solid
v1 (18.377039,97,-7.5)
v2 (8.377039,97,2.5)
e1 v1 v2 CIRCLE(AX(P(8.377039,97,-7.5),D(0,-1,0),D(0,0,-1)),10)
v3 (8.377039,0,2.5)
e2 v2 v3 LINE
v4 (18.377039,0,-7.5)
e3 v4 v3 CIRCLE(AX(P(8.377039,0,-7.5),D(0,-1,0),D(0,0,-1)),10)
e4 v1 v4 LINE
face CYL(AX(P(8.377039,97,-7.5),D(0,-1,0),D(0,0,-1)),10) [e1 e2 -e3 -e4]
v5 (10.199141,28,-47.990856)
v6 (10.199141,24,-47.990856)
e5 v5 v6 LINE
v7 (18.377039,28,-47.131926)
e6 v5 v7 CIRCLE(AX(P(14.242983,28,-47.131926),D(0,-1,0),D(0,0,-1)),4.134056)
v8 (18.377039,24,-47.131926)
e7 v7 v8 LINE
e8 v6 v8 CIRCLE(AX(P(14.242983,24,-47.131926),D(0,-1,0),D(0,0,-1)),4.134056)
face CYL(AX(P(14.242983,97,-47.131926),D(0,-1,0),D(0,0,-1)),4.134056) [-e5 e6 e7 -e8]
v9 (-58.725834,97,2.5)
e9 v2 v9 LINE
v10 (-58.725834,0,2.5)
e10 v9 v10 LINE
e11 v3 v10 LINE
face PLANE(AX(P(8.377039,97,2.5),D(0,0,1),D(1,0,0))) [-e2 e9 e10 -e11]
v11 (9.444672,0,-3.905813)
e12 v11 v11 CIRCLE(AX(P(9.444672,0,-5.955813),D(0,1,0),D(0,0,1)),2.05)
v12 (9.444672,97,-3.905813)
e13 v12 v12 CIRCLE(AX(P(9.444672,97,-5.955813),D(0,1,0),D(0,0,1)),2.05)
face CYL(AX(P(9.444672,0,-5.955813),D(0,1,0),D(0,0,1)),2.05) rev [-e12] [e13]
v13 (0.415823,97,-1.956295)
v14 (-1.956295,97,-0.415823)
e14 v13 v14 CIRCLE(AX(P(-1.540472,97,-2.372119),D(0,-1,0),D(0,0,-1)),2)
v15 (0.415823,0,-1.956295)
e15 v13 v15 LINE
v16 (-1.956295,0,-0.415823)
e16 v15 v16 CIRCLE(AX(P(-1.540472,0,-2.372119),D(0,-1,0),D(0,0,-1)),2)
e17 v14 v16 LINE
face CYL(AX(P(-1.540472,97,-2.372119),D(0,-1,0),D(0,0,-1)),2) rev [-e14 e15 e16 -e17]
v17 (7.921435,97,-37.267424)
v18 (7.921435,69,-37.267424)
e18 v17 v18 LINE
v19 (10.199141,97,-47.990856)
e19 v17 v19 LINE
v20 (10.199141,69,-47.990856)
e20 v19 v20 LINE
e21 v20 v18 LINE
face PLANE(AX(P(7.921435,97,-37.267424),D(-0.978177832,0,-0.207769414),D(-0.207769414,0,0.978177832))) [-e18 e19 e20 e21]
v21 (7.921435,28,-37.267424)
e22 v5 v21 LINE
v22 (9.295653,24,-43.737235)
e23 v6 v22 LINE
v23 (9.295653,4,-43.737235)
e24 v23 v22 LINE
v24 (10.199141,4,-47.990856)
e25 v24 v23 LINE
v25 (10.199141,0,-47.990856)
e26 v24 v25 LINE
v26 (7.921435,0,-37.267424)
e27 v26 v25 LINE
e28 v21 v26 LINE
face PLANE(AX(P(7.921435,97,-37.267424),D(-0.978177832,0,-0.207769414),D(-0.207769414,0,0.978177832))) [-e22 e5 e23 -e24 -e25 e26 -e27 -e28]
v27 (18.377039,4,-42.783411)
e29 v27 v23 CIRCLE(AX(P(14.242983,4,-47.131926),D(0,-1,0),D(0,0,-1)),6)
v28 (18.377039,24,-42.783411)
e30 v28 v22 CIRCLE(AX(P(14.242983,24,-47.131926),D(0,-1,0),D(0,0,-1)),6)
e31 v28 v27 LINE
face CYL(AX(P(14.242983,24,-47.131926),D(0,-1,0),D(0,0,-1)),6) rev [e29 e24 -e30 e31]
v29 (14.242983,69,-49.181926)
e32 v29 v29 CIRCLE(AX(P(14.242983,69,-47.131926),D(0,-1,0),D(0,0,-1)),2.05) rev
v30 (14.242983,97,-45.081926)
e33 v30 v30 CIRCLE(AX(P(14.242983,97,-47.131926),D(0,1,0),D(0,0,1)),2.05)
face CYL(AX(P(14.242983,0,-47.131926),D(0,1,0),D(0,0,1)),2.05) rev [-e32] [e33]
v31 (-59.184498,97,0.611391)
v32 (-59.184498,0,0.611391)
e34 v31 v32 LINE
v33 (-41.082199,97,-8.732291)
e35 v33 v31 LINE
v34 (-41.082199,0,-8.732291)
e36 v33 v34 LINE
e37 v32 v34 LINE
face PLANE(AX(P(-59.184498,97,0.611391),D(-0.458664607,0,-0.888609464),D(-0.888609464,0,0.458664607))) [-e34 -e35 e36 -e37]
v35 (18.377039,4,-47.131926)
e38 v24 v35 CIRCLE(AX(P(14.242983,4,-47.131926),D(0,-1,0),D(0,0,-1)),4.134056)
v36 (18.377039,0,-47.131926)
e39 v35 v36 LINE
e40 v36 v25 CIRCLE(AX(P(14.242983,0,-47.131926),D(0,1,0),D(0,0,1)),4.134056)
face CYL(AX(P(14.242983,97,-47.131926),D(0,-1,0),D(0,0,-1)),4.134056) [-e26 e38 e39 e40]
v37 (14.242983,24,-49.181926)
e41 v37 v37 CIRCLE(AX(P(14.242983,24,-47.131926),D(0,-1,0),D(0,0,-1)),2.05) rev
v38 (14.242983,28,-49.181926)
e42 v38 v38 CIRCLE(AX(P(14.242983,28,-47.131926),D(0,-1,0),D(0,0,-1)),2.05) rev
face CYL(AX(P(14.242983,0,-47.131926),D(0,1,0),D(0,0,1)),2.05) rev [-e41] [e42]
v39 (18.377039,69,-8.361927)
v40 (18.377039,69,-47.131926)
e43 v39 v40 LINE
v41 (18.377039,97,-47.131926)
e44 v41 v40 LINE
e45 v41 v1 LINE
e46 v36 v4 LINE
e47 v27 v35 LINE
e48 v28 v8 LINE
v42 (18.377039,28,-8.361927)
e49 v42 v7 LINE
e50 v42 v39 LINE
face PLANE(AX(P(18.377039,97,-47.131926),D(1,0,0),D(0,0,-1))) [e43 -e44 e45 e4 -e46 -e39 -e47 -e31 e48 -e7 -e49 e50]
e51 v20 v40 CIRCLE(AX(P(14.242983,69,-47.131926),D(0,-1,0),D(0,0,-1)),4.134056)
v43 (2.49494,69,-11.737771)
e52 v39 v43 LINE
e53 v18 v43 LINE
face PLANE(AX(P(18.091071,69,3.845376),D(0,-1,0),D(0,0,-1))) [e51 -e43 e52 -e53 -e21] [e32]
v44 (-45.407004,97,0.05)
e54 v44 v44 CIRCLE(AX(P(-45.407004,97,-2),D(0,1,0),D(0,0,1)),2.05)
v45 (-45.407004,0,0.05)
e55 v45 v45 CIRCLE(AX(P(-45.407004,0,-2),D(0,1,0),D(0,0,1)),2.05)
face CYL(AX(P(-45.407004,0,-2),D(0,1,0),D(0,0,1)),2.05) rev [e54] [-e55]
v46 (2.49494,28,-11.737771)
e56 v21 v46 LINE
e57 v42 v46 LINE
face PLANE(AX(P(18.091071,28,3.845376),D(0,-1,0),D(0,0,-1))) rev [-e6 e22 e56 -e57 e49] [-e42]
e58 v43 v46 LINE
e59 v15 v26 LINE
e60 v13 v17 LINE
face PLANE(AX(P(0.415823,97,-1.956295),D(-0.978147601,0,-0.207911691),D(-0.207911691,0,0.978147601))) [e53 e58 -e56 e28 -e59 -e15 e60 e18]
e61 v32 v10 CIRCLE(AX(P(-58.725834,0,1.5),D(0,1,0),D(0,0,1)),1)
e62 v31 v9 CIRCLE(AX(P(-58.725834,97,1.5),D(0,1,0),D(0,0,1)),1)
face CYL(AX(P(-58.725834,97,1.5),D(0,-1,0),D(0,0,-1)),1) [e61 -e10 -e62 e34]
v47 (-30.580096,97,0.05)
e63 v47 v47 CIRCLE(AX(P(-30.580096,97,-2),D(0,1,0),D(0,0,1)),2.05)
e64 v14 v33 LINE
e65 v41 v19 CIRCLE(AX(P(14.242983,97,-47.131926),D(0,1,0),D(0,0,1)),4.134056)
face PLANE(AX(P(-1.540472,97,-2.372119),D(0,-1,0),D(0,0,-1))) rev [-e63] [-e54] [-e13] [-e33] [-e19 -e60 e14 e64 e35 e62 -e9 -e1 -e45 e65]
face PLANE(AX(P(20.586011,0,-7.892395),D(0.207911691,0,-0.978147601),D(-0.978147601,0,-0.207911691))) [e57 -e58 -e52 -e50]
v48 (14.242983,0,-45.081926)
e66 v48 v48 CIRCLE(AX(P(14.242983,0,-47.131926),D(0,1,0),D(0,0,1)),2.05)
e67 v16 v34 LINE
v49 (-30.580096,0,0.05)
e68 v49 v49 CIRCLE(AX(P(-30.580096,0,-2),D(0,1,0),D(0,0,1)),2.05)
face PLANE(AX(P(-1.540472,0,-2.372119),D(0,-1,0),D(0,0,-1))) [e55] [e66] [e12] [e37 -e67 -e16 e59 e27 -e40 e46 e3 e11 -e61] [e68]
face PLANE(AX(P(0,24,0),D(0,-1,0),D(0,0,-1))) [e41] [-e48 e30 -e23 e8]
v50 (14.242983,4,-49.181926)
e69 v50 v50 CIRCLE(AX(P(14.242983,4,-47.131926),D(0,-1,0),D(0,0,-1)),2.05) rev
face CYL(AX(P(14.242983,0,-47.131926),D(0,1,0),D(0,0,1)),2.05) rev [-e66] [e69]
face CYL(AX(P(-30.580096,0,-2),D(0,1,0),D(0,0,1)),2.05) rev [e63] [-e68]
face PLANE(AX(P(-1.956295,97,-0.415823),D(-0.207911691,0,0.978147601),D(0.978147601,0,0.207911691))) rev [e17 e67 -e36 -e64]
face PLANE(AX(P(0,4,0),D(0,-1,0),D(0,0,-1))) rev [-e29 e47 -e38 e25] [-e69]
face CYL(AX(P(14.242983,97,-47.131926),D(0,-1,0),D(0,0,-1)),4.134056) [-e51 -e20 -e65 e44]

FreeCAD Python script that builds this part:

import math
import FreeCAD as App
import Part
import Sketcher
from FreeCAD import Vector
Q = App.Units.Quantity

doc = App.newDocument("Part")
body = doc.addObject("PartDesign::Body", "Body")

# Sketch on XZ plane
sketch1 = body.newObject("Sketcher::SketchObject", "Sketch")
sketch1.AttachmentSupport = (doc.getObject("XZ_Plane"), [""])
sketch1.MapMode = "FlatFace"
sketch1.addGeometry(Part.LineSegment(Vector(-2, -0.4, 0), Vector(-41.1, -8.7, 0)), False)
sketch1.addGeometry(Part.LineSegment(Vector(-41.1, -8.7, 0), Vector(-58, 0, 0)), False)
sketch1.addGeometry(Part.LineSegment(Vector(-58, 0, 0), Vector(-59.2, 0.6, 0)), False)
sketch1.addGeometry(Part.ArcOfCircle(Part.Circle(Vector(-58.7, 1.5, 0), Vector(0, 0, 1), 1), math.radians(90), math.radians(243)), False)
sketch1.addGeometry(Part.LineSegment(Vector(-58.7, 2.5, 0), Vector(8.4, 2.5, 0)), False)
sketch1.addGeometry(Part.ArcOfCircle(Part.Circle(Vector(8.4, -7.5, 0), Vector(0, 0, 1), 10), math.radians(0), math.radians(90)), False)
sketch1.addGeometry(Part.LineSegment(Vector(18.4, -7.5, 0), Vector(18.4, -47.1, 0)), False)
sketch1.addGeometry(Part.ArcOfCircle(Part.Circle(Vector(14.2, -47.1, 0), Vector(0, 0, 1), 4.1), math.radians(-168), math.radians(0)), False)
sketch1.addGeometry(Part.LineSegment(Vector(10.2, -48, 0), Vector(7.9, -37.3, 0)), False)
sketch1.addGeometry(Part.LineSegment(Vector(7.9, -37.3, 0), Vector(0.4, -2, 0)), False)
sketch1.addGeometry(Part.ArcOfCircle(Part.Circle(Vector(-1.5, -2.4, 0), Vector(0, 0, 1), 2), math.radians(12), math.radians(102)), False)
sketch1.addConstraint(Sketcher.Constraint("Coincident", 0, 2, 1, 1))
sketch1.addConstraint(Sketcher.Constraint("Coincident", 1, 2, 2, 1))
sketch1.addConstraint(Sketcher.Constraint("Tangent", 2, 2, 3, 2))
sketch1.addConstraint(Sketcher.Constraint("Tangent", 3, 1, 4, 1))
sketch1.addConstraint(Sketcher.Constraint("Tangent", 4, 2, 5, 2))
sketch1.addConstraint(Sketcher.Constraint("Tangent", 5, 1, 6, 1))
sketch1.addConstraint(Sketcher.Constraint("Tangent", 6, 2, 7, 2))
sketch1.addConstraint(Sketcher.Constraint("Tangent", 7, 1, 8, 1))
sketch1.addConstraint(Sketcher.Constraint("Coincident", 8, 2, 9, 1))
sketch1.addConstraint(Sketcher.Constraint("Tangent", 9, 2, 10, 1))
sketch1.addConstraint(Sketcher.Constraint("Tangent", 10, 2, 0, 1))
sketch1.addConstraint(Sketcher.Constraint("Horizontal", 4))
sketch1.addConstraint(Sketcher.Constraint("Vertical", 6))
sketch1.addConstraint(Sketcher.Constraint("PointOnObject", 1, 2, -1))
sketch1.addConstraint(Sketcher.Constraint("Parallel", 1, 2))
sketch1.addConstraint(Sketcher.Constraint("Perpendicular", 0, 9))
sketch1.addConstraint(Sketcher.Constraint("Radius", 3, 1.0))
sketch1.addConstraint(Sketcher.Constraint("Radius", 5, 10.0))
sketch1.addConstraint(Sketcher.Constraint("Radius", 10, 2.0))
sketch1.addConstraint(Sketcher.Constraint("Angle", 0, Q("-168 deg")))
sketch1.addConstraint(Sketcher.Constraint("Distance", 0, 40.0))
sketch1.addConstraint(Sketcher.Constraint("DistanceX", 1, 2, -1, 1, 58.0))
sketch1.addConstraint(Sketcher.Constraint("Distance", 9, 36.1))
sketch1.addConstraint(Sketcher.Constraint("DistanceY", -1, 1, 3, 3, 1.5))
sketch1.addConstraint(Sketcher.Constraint("Radius", 7, 4.134056))
sketch1.addConstraint(Sketcher.Constraint("DistanceX", 0, 2, -1, 1, 41.082199))
sketch1.addConstraint(Sketcher.Constraint("DistanceX", 2, 2, -1, 1, 59.184498))
sketch1.addConstraint(Sketcher.Constraint("DistanceX", 7, 1, 6, 2, 8.177898))
sketch1.addConstraint(Sketcher.Constraint("DistanceY", 7, 3, 8, 2, 9.864502))
pad1 = body.newObject("PartDesign::Pad", "Pad")
pad1.Profile = sketch1
pad1.Length = 97
pad1.Reversed = True

# Sketch on XZ plane
sketch2 = body.newObject("Sketcher::SketchObject", "Sketch001")
sketch2.AttachmentSupport = (doc.getObject("XZ_Plane"), [""])
sketch2.MapMode = "FlatFace"
sketch2.AttachmentOffset = App.Placement(Vector(0, 0, -97), App.Rotation())
sketch2.addGeometry(Part.Circle(Vector(-45.4, -2, 0), Vector(0, 0, 1), 2), False)
sketch2.addGeometry(Part.Circle(Vector(9.4, -6, 0), Vector(0, 0, 1), 2), False)
sketch2.addGeometry(Part.Circle(Vector(14.2, -47.1, 0), Vector(0, 0, 1), 2), False)
sketch2.addGeometry(Part.Circle(Vector(-30.6, -2, 0), Vector(0, 0, 1), 2), False)
sketch2.addConstraint(Sketcher.Constraint("Equal", 0, 1))
sketch2.addConstraint(Sketcher.Constraint("Equal", 1, 2))
sketch2.addConstraint(Sketcher.Constraint("Equal", 2, 3))
sketch2.addConstraint(Sketcher.Constraint("Horizontal", 0, 3, 3, 3))
sketch2.addConstraint(Sketcher.Constraint("Diameter", 0, 4.1))
sketch2.addConstraint(Sketcher.Constraint("DistanceY", 0, 3, -1, 1, 2.0))
sketch2.addConstraint(Sketcher.Constraint("DistanceX", -1, 1, 1, 3, 9.444672))
sketch2.addConstraint(Sketcher.Constraint("DistanceX", 1, 3, 2, 3, 4.798311))
sketch2.addConstraint(Sketcher.Constraint("DistanceX", 0, 3, 3, 3, 14.826908))
sketch2.addConstraint(Sketcher.Constraint("DistanceX", 3, 3, 2, 3, 44.823079))
sketch2.addConstraint(Sketcher.Constraint("DistanceY", 1, 3, -1, 1, 5.955813))
sketch2.addConstraint(Sketcher.Constraint("DistanceY", 2, 3, -1, 1, 47.131926))
pocket1 = body.newObject("PartDesign::Pocket", "Pocket")
pocket1.Profile = sketch2
pocket1.Type = "ThroughAll"
pocket1.Reversed = True

# Sketch on an angled plane
sketch3 = body.newObject("Sketcher::SketchObject", "Sketch002")
sketch3.Placement = App.Placement(Vector(-9.781476, 0, -2.079117), App.Rotation(Vector(-0.207911691, 0, 0.978147601), Vector(0, 1.000000001, 0), Vector(-0.978147601, 0, -0.207911691), "ZXY"))
sketch3.addGeometry(Part.LineSegment(Vector(-53, 69, 0), Vector(-53, 28, 0)), False)
sketch3.addGeometry(Part.LineSegment(Vector(-53, 28, 0), Vector(-12, 28, 0)), False)
sketch3.addGeometry(Part.LineSegment(Vector(-12, 28, 0), Vector(-12, 69, 0)), False)
sketch3.addGeometry(Part.LineSegment(Vector(-12, 69, 0), Vector(-53, 69, 0)), False)
sketch3.addConstraint(Sketcher.Constraint("Coincident", 0, 2, 1, 1))
sketch3.addConstraint(Sketcher.Constraint("Coincident", 1, 2, 2, 1))
sketch3.addConstraint(Sketcher.Constraint("Coincident", 2, 2, 3, 1))
sketch3.addConstraint(Sketcher.Constraint("Coincident", 3, 2, 0, 1))
sketch3.addConstraint(Sketcher.Constraint("Vertical", 0))
sketch3.addConstraint(Sketcher.Constraint("Horizontal", 1))
sketch3.addConstraint(Sketcher.Constraint("Vertical", 2))
sketch3.addConstraint(Sketcher.Constraint("Horizontal", 3))
sketch3.addConstraint(Sketcher.Constraint("DistanceY", 0, 2, 0, 1, 41.0))
sketch3.addConstraint(Sketcher.Constraint("DistanceY", -1, 1, 0, 2, 28.0))
sketch3.addConstraint(Sketcher.Constraint("DistanceX", 1, 2, -1, 1, 12.0))
sketch3.addConstraint(Sketcher.Constraint("DistanceX", 1, 1, 1, 2, 41.197319))
pocket2 = body.newObject("PartDesign::Pocket", "Pocket001")
pocket2.Profile = sketch3
pocket2.Type = "ThroughAll"
pocket2.Midplane = True

# Sketch on XZ plane
sketch4 = body.newObject("Sketcher::SketchObject", "Sketch003")
sketch4.AttachmentSupport = (doc.getObject("XZ_Plane"), [""])
sketch4.MapMode = "FlatFace"
sketch4.AttachmentOffset = App.Placement(Vector(0, 0, -4), App.Rotation())
sketch4.addGeometry(Part.ArcOfCircle(Part.Circle(Vector(14.2, -47.1, 0), Vector(0, 0, 1), 6), math.radians(46), math.radians(146)), False)
sketch4.addGeometry(Part.ArcOfCircle(Part.Circle(Vector(14.2, -47.1, 0), Vector(0, 0, 1), 6), math.radians(146), math.radians(360)), False)
sketch4.addGeometry(Part.ArcOfCircle(Part.Circle(Vector(14.2, -47.1, 0), Vector(0, 0, 1), 6), math.radians(0), math.radians(46)), False)
sketch4.addGeometry(Part.Circle(Vector(14.2, -47.1, 0), Vector(0, 0, 1), 2), False)
sketch4.addConstraint(Sketcher.Constraint("Tangent", 0, 2, 1, 1))
sketch4.addConstraint(Sketcher.Constraint("Tangent", 1, 2, 2, 1))
sketch4.addConstraint(Sketcher.Constraint("Tangent", 2, 2, 0, 1))
sketch4.addConstraint(Sketcher.Constraint("Coincident", 3, 3, 0, 3))
sketch4.addConstraint(Sketcher.Constraint("Horizontal", 3, 3, 1, 2))
sketch4.addConstraint(Sketcher.Constraint("Radius", 0, 6.0))
sketch4.addConstraint(Sketcher.Constraint("Diameter", 3, 4.1))
sketch4.addConstraint(Sketcher.Constraint("DistanceX", -1, 1, 2, 2, 18.377039))
sketch4.addConstraint(Sketcher.Constraint("DistanceY", 2, 2, -1, 1, 42.783411))
sketch4.addConstraint(Sketcher.Constraint("DistanceX", 0, 2, 2, 3, 4.94733))
sketch4.addConstraint(Sketcher.Constraint("DistanceX", -1, 1, 0, 3, 14.242983))
pocket3 = body.newObject("PartDesign::Pocket", "Pocket002")
pocket3.Profile = sketch4
pocket3.Length = 20

doc.recompute()
